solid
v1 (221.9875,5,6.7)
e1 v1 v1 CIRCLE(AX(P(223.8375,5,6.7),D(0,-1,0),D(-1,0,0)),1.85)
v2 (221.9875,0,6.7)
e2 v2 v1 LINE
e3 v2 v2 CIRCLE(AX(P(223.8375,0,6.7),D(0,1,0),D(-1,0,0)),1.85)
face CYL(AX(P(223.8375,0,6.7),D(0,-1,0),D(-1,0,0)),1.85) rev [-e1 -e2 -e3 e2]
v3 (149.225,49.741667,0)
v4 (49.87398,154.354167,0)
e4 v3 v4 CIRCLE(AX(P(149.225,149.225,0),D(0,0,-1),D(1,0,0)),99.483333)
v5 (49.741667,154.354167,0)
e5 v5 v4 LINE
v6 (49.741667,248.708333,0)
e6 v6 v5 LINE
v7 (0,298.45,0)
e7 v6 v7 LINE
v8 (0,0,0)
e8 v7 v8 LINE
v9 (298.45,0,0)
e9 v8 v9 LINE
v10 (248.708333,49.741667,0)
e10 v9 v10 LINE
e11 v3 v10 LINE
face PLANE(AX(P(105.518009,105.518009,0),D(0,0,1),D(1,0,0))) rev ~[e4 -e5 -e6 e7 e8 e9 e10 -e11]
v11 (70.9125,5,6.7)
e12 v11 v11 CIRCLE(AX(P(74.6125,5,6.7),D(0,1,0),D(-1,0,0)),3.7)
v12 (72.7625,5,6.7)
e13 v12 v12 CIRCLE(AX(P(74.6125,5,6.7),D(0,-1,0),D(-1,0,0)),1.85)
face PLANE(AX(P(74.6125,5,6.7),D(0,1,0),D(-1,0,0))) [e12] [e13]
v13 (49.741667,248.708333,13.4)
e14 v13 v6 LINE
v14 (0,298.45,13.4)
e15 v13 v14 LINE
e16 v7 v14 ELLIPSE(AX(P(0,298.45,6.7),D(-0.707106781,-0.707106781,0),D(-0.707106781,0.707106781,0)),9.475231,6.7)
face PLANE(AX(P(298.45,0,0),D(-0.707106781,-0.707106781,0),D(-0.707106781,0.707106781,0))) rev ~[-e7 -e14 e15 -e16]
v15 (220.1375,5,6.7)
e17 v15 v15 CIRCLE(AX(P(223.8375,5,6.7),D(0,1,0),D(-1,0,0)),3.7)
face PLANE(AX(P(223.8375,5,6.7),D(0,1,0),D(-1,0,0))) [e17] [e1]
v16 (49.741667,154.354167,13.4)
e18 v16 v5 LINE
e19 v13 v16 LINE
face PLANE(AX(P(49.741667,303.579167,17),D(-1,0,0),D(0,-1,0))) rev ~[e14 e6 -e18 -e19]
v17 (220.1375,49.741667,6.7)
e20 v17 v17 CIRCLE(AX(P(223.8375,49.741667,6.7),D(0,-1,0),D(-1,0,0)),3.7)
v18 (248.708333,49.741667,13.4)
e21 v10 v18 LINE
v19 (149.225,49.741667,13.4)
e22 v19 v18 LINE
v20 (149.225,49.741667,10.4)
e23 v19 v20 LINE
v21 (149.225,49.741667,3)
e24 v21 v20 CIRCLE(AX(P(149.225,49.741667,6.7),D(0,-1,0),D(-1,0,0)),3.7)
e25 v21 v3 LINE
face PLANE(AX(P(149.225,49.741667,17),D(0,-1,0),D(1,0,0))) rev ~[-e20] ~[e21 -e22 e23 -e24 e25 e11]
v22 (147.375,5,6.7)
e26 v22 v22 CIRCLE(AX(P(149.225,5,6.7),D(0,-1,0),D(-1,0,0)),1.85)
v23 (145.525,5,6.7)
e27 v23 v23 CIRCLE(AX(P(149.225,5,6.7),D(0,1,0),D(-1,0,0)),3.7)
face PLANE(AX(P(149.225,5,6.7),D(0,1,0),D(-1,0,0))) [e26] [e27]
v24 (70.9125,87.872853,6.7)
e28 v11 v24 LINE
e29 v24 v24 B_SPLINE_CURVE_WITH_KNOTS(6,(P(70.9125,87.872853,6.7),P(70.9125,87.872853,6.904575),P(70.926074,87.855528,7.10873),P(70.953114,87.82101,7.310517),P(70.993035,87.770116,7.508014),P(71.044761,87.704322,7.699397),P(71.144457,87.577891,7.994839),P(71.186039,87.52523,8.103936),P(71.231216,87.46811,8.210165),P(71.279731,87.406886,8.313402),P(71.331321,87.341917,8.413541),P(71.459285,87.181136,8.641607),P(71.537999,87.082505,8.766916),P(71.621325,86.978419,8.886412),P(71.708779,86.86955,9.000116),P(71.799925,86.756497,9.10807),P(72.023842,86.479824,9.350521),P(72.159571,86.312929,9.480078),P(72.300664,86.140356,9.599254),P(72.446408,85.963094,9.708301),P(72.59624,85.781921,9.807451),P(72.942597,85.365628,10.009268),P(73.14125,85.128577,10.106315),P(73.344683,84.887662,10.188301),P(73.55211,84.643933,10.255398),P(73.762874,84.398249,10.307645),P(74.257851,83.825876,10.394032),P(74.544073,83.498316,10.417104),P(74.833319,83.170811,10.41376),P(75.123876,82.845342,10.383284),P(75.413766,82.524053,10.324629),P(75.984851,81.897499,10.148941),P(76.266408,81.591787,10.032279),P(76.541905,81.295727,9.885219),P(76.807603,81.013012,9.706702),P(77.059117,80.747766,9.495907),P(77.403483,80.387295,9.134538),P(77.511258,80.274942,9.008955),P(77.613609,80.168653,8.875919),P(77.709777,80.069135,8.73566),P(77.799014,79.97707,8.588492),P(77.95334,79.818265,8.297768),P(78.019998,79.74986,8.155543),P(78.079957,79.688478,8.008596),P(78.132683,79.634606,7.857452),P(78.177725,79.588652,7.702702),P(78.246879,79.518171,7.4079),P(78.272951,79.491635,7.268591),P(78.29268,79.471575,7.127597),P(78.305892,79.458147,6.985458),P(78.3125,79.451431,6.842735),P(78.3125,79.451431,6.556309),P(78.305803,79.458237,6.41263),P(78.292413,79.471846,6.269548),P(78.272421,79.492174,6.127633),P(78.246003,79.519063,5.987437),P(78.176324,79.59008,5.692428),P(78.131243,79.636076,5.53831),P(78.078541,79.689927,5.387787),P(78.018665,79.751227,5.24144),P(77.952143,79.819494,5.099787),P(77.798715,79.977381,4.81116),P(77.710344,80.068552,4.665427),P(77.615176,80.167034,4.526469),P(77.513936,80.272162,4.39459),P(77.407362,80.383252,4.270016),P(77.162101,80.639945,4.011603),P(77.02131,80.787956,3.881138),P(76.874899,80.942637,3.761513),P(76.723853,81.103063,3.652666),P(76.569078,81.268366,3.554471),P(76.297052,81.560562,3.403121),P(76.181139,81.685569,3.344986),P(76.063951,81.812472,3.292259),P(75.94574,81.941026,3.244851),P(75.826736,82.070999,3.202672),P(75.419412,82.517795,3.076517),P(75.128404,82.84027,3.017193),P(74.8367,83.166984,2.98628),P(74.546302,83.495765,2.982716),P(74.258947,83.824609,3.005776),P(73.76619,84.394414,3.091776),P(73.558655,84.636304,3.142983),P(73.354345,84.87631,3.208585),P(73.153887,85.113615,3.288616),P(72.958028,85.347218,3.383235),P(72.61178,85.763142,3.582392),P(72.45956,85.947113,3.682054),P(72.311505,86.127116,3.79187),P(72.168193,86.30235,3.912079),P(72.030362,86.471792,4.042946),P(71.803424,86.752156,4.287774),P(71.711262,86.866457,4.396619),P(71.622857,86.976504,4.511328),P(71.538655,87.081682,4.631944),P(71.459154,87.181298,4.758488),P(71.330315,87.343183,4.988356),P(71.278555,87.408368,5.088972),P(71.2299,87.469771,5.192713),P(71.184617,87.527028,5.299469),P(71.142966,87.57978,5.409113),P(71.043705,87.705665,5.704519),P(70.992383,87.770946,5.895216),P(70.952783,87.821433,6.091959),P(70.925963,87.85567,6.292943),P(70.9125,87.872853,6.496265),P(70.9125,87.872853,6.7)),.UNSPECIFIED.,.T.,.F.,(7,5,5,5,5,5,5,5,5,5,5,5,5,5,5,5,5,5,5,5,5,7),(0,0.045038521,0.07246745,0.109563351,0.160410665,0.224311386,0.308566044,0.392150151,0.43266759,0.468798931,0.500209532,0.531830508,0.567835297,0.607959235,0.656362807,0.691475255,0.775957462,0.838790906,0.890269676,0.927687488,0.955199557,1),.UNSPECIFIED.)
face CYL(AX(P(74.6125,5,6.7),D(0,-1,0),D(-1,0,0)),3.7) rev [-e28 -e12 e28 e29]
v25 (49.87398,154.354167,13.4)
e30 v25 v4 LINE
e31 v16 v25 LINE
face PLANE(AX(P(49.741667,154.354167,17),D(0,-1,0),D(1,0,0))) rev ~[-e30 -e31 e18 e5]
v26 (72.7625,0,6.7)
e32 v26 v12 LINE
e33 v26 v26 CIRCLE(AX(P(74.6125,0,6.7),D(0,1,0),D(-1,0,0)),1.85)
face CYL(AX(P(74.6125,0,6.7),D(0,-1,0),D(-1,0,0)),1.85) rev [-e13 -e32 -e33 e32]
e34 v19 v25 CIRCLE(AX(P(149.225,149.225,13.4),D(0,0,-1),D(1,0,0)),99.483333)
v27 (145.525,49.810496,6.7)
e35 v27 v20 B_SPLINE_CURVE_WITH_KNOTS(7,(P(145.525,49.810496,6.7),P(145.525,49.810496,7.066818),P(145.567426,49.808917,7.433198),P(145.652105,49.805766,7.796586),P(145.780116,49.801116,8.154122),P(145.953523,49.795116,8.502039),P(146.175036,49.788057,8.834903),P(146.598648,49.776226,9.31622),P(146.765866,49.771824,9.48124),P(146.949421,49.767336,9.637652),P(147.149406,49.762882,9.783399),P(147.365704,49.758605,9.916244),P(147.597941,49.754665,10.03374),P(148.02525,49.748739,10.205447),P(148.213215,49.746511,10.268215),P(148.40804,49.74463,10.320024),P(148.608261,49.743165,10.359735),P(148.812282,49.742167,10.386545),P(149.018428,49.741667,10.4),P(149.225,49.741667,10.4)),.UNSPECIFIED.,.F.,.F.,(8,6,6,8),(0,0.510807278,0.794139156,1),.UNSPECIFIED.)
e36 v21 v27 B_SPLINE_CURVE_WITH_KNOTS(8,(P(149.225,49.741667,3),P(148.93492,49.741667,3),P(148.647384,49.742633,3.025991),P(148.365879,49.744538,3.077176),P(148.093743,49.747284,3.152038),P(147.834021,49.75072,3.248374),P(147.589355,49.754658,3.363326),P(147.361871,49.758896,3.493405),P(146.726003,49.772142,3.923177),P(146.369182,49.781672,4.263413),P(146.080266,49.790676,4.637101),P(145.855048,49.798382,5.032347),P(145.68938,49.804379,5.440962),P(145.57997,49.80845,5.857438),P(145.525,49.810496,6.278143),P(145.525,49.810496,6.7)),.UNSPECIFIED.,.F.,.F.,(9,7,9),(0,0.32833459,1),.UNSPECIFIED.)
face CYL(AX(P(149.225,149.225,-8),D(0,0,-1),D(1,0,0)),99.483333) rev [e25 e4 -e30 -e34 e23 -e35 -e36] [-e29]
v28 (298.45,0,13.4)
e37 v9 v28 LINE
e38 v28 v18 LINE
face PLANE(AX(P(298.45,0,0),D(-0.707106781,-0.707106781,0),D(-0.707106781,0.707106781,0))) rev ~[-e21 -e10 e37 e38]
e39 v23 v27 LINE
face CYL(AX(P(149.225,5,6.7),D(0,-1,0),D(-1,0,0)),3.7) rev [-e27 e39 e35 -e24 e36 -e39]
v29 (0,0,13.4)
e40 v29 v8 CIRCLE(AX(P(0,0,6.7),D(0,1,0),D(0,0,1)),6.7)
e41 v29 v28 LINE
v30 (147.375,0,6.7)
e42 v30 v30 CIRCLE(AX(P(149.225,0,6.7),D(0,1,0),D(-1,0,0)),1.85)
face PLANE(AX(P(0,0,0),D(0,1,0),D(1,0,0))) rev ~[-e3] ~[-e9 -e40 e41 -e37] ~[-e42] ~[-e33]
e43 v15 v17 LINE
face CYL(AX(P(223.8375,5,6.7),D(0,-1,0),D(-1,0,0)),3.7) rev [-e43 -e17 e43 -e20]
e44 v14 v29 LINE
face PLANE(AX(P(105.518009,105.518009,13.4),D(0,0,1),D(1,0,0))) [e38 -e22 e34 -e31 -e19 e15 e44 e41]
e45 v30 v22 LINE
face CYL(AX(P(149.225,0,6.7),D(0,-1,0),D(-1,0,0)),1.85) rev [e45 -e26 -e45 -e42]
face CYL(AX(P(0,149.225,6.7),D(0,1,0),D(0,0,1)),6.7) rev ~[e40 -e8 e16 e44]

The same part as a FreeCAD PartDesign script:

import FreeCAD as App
import Part
import Sketcher

V = App.Vector


def add_polygon(sketch, points):
    """Adds a closed chain of lines whose ends are joined by coincident constraints."""
    first, n = sketch.GeometryCount, len(points)
    for a, b in zip(points, points[1:] + points[:1]):
        sketch.addGeometry(Part.LineSegment(App.Vector(*a, 0), App.Vector(*b, 0)), False)
    for i in range(n):
        sketch.addConstraint(Sketcher.Constraint("Coincident", first + i, 2, first + (i + 1) % n, 1))

doc = App.newDocument("Part")
body = doc.addObject("PartDesign::Body", "Body")

# Sketch on XY plane
sketch1 = body.newObject("Sketcher::SketchObject", "Sketch")
sketch1.AttachmentSupport = (doc.getObject("XY_Plane"), [""])
sketch1.MapMode = "FlatFace"
add_polygon(sketch1, [(0, 0), (298, 0), (0, 298)])  # lines 0-2
sketch1.addConstraint([
    Sketcher.Constraint("Horizontal", 0),
    Sketcher.Constraint("Vertical", 2),
    Sketcher.Constraint("Coincident", 2, 2, -1, 1),
    Sketcher.Constraint("Equal", 0, 2),
    Sketcher.Constraint("DistanceX", 0, 1, 0, 2, 298.45),
])
pad1 = body.newObject("PartDesign::Pad", "Pad")
pad1.Profile = sketch1
pad1.Length = 13.4

# Sketch on YZ plane
sketch2 = body.newObject("Sketcher::SketchObject", "Sketch001")
sketch2.AttachmentSupport = (doc.getObject("YZ_Plane"), [""])
sketch2.MapMode = "FlatFace"
add_polygon(sketch2, [(298, 7), (0, 7), (0, 13), (298, 13)])  # lines 0-3
sketch2.addGeometry(Part.LineSegment(V(0, 7, 0), V(298, 7, 0)), True)  # axis
sketch2.addConstraint([
    Sketcher.Constraint("Horizontal", 0),
    Sketcher.Constraint("Vertical", 1),
    Sketcher.Constraint("Horizontal", 2),
    Sketcher.Constraint("Vertical", 3),
    Sketcher.Constraint("Horizontal", 4),
    Sketcher.Constraint("Coincident", 4, 1, 0, 2),
    Sketcher.Constraint("PointOnObject", 0, 2, -2),
    Sketcher.Constraint("Vertical", 2, 2, 4, 2),
    Sketcher.Constraint("DistanceY", 1, 1, 1, 2, 6.7),
    Sketcher.Constraint("DistanceX", 0, 2, 0, 1, 298.45),
    Sketcher.Constraint("DistanceY", -1, 1, 0, 2, 6.7),
])
groove = body.newObject("PartDesign::Groove", "Groove")
groove.Profile = sketch2
groove.ReferenceAxis = (sketch2, ["Axis0"])
groove.Angle = 180

# Sketch on XY plane
sketch3 = body.newObject("Sketcher::SketchObject", "Sketch002")
sketch3.AttachmentSupport = (doc.getObject("XY_Plane"), [""])
sketch3.MapMode = "FlatFace"
sketch3.AttachmentOffset = App.Placement(V(0, 0, -8), App.Rotation())
sketch3.addGeometry(Part.Circle(V(149, 149, 0), V(0, 0, 1), 99), False)
sketch3.addConstraint([
    Sketcher.Constraint("Diameter", 0, 198.966666),
    Sketcher.Constraint("DistanceX", -1, 1, 0, 3, 149.225),
    Sketcher.Constraint("DistanceY", -1, 1, 0, 3, 149.225),
])
pocket1 = body.newObject("PartDesign::Pocket", "Pocket")
pocket1.Profile = sketch3
pocket1.Length = 32
pocket1.Reversed = True

# Sketch on XY plane
sketch4 = body.newObject("Sketcher::SketchObject", "Sketch003")
sketch4.AttachmentSupport = (doc.getObject("XY_Plane"), [""])
sketch4.MapMode = "FlatFace"
sketch4.AttachmentOffset = App.Placement(V(0, 0, 17), App.Rotation())
add_polygon(sketch4, [(149, 50), (149, 80), (298, 80), (298, 50)])  # lines 0-3
sketch4.addConstraint([
    Sketcher.Constraint("Vertical", 0),
    Sketcher.Constraint("Horizontal", 1),
    Sketcher.Constraint("Vertical", 2),
    Sketcher.Constraint("Horizontal", 3),
    Sketcher.Constraint("DistanceY", 0, 1, 0, 2, 30.0),
    Sketcher.Constraint("DistanceX", 1, 1, 1, 2, 149.225),
    Sketcher.Constraint("DistanceX", -1, 1, 1, 2, 298.45),
    Sketcher.Constraint("DistanceY", -1, 1, 0, 2, 79.741667),
])
pocket2 = body.newObject("PartDesign::Pocket", "Pocket001")
pocket2.Profile = sketch4
pocket2.Length = 21

# Sketch on XY plane
sketch5 = body.newObject("Sketcher::SketchObject", "Sketch004")
sketch5.AttachmentSupport = (doc.getObject("XY_Plane"), [""])
sketch5.MapMode = "FlatFace"
sketch5.AttachmentOffset = App.Placement(V(0, 0, 17), App.Rotation())
add_polygon(sketch5, [(50, 154), (50, 304), (83, 304), (83, 154)])  # lines 0-3
sketch5.addConstraint([
    Sketcher.Constraint("Vertical", 0),
    Sketcher.Constraint("Horizontal", 1),
    Sketcher.Constraint("Vertical", 2),
    Sketcher.Constraint("Horizontal", 3),
    Sketcher.Constraint("DistanceX", 1, 1, 1, 2, 33.0),
    Sketcher.Constraint("DistanceY", 0, 1, 0, 2, 149.225),
    Sketcher.Constraint("DistanceX", -1, 1, 0, 2, 49.741667),
    Sketcher.Constraint("DistanceY", -1, 1, 0, 2, 303.579167),
])
pocket3 = body.newObject("PartDesign::Pocket", "Pocket002")
pocket3.Profile = sketch5
pocket3.Length = 22

# Sketch on XZ plane
sketch6 = body.newObject("Sketcher::SketchObject", "Sketch005")
sketch6.AttachmentSupport = (doc.getObject("XZ_Plane"), [""])
sketch6.MapMode = "FlatFace"
sketch6.AttachmentOffset = App.Placement(V(0, 0, -5), App.Rotation())
sketch6.addGeometry(Part.Circle(V(74.6, 6.7, 0), V(0, 0, 1), 3.7), False)
sketch6.addConstraint([
    Sketcher.Constraint("Diameter", 0, 7.4),
    Sketcher.Constraint("DistanceY", -1, 1, 0, 3, 6.7),
    Sketcher.Constraint("DistanceX", -1, 1, 0, 3, 74.6125),
])
pocket4 = body.newObject("PartDesign::Pocket", "Pocket003")
pocket4.Profile = sketch6
pocket4.Length = 105
doc.recompute()

linearpattern = body.newObject("PartDesign::LinearPattern", "LinearPattern")
linearpattern.Originals = [pocket4]
linearpattern.Direction = (doc.getObject("X_Axis"), [""])
linearpattern.Mode = "offset"
linearpattern.Offset = 74.6125
linearpattern.Occurrences = 3
body.Tip = linearpattern

# Sketch on XZ plane
sketch7 = body.newObject("Sketcher::SketchObject", "Sketch006")
sketch7.AttachmentSupport = (doc.getObject("XZ_Plane"), [""])
sketch7.MapMode = "FlatFace"
sketch7.addGeometry(Part.Circle(V(74.6, 6.7, 0), V(0, 0, 1), 1.9), False)
sketch7.addConstraint([
    Sketcher.Constraint("Diameter", 0, 3.7),
    Sketcher.Constraint("DistanceY", -1, 1, 0, 3, 6.7),
    Sketcher.Constraint("DistanceX", -1, 1, 0, 3, 74.6125),
])
pocket5 = body.newObject("PartDesign::Pocket", "Pocket004")
pocket5.Profile = sketch7
pocket5.Length = 100
doc.recompute()

linearpattern2 = body.newObject("PartDesign::LinearPattern", "LinearPattern001")
linearpattern2.Originals = [pocket5]
linearpattern2.Direction = (doc.getObject("X_Axis"), [""])
linearpattern2.Mode = "offset"
linearpattern2.Offset = 74.6125
linearpattern2.Occurrences = 3
body.Tip = linearpattern2

doc.recompute()
